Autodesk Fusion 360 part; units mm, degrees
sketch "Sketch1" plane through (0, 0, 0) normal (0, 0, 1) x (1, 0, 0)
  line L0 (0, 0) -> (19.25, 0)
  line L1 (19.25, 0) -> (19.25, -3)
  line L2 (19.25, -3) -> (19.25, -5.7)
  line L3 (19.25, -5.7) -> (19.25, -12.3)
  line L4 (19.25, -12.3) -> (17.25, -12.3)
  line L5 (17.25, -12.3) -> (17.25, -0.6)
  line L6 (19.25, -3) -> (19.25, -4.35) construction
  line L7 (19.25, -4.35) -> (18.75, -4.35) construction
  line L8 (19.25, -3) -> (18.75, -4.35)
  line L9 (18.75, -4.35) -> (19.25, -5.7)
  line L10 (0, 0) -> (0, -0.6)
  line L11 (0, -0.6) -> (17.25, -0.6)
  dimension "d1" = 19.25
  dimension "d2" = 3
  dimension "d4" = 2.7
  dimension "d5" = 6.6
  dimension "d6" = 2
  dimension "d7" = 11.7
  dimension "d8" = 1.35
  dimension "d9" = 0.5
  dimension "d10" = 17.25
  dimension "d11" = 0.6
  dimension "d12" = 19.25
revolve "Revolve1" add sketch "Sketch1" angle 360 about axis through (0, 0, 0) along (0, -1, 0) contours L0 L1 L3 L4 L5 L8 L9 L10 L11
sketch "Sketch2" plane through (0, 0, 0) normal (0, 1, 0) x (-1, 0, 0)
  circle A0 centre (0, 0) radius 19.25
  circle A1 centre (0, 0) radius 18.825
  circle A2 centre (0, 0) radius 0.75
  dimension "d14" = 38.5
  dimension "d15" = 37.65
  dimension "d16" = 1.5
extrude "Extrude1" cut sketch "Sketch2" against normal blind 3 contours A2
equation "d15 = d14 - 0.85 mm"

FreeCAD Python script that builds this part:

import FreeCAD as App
import Part
import Sketcher

V = App.Vector

doc = App.newDocument("Part")
body = doc.addObject("PartDesign::Body", "Body")

# Sketch on XY plane
sketch1 = body.newObject("Sketcher::SketchObject", "Sketch")
sketch1.AttachmentSupport = (doc.getObject("XY_Plane"), [""])
sketch1.MapMode = "FlatFace"
sketch1.addGeometry(Part.LineSegment(V(19.25, 0, 0), V(0, 0, 0)), False)
sketch1.addGeometry(Part.LineSegment(V(0, 0, 0), V(0, -0.6, 0)), False)
sketch1.addGeometry(Part.LineSegment(V(0, -0.6, 0), V(17.25, -0.6, 0)), False)
sketch1.addGeometry(Part.LineSegment(V(17.25, -0.6, 0), V(17.25, -12.3, 0)), False)
sketch1.addGeometry(Part.LineSegment(V(17.25, -12.3, 0), V(19.25, -12.3, 0)), False)
sketch1.addGeometry(Part.LineSegment(V(19.25, -12.3, 0), V(19.25, -5.7, 0)), False)
sketch1.addGeometry(Part.LineSegment(V(19.25, -5.7, 0), V(18.75, -4.35, 0)), False)
sketch1.addGeometry(Part.LineSegment(V(18.75, -4.35, 0), V(19.25, -3, 0)), False)
sketch1.addGeometry(Part.LineSegment(V(19.25, -3, 0), V(19.25, 0, 0)), False)
sketch1.addConstraint(Sketcher.Constraint("Coincident", 0, 2, 1, 1))
sketch1.addConstraint(Sketcher.Constraint("Coincident", 1, 2, 2, 1))
sketch1.addConstraint(Sketcher.Constraint("Coincident", 2, 2, 3, 1))
sketch1.addConstraint(Sketcher.Constraint("Coincident", 3, 2, 4, 1))
sketch1.addConstraint(Sketcher.Constraint("Coincident", 4, 2, 5, 1))
sketch1.addConstraint(Sketcher.Constraint("Coincident", 5, 2, 6, 1))
sketch1.addConstraint(Sketcher.Constraint("Coincident", 6, 2, 7, 1))
sketch1.addConstraint(Sketcher.Constraint("Coincident", 7, 2, 8, 1))
sketch1.addConstraint(Sketcher.Constraint("Coincident", 8, 2, 0, 1))
sketch1.addConstraint(Sketcher.Constraint("Horizontal", 0))
sketch1.addConstraint(Sketcher.Constraint("Vertical", 1))
sketch1.addConstraint(Sketcher.Constraint("Horizontal", 2))
sketch1.addConstraint(Sketcher.Constraint("Vertical", 3))
sketch1.addConstraint(Sketcher.Constraint("Horizontal", 4))
sketch1.addConstraint(Sketcher.Constraint("Vertical", 5))
sketch1.addConstraint(Sketcher.Constraint("Vertical", 8))
sketch1.addConstraint(Sketcher.Constraint("Coincident", 0, 2, -1, 1))
sketch1.addConstraint(Sketcher.Constraint("Vertical", 5, 2, 7, 2))
sketch1.addConstraint(Sketcher.Constraint("Equal", 6, 7))
sketch1.addConstraint(Sketcher.Constraint("DistanceX", 4, 1, 4, 2, 2.0))
sketch1.addConstraint(Sketcher.Constraint("DistanceY", 8, 1, 8, 2, 3.0))
sketch1.addConstraint(Sketcher.Constraint("DistanceY", 1, 2, 1, 1, 0.6))
sketch1.addConstraint(Sketcher.Constraint("DistanceY", 3, 2, 3, 1, 11.7))
sketch1.addConstraint(Sketcher.Constraint("DistanceY", 5, 1, 5, 2, 6.6))
sketch1.addConstraint(Sketcher.Constraint("DistanceX", 0, 2, 0, 1, 19.25))
sketch1.addConstraint(Sketcher.Constraint("DistanceX", 6, 2, 5, 2, 0.5))
revolution = body.newObject("PartDesign::Revolution", "Revolution")
revolution.Profile = sketch1
revolution.ReferenceAxis = (sketch1, ["V_Axis"])
revolution.Angle = 360

# Sketch on XZ plane
sketch2 = body.newObject("Sketcher::SketchObject", "Sketch001")
sketch2.AttachmentSupport = (doc.getObject("XZ_Plane"), [""])
sketch2.MapMode = "FlatFace"
sketch2.addGeometry(Part.Circle(V(0, 0, 0), V(0, 0, 1), 0.75), False)
sketch2.addConstraint(Sketcher.Constraint("Coincident", 0, 3, -1, 1))
sketch2.addConstraint(Sketcher.Constraint("Diameter", 0, 1.5))
pocket1 = body.newObject("PartDesign::Pocket", "Pocket")
pocket1.Profile = sketch2
pocket1.Length = 3
pocket1.Reversed = True

doc.recompute()
